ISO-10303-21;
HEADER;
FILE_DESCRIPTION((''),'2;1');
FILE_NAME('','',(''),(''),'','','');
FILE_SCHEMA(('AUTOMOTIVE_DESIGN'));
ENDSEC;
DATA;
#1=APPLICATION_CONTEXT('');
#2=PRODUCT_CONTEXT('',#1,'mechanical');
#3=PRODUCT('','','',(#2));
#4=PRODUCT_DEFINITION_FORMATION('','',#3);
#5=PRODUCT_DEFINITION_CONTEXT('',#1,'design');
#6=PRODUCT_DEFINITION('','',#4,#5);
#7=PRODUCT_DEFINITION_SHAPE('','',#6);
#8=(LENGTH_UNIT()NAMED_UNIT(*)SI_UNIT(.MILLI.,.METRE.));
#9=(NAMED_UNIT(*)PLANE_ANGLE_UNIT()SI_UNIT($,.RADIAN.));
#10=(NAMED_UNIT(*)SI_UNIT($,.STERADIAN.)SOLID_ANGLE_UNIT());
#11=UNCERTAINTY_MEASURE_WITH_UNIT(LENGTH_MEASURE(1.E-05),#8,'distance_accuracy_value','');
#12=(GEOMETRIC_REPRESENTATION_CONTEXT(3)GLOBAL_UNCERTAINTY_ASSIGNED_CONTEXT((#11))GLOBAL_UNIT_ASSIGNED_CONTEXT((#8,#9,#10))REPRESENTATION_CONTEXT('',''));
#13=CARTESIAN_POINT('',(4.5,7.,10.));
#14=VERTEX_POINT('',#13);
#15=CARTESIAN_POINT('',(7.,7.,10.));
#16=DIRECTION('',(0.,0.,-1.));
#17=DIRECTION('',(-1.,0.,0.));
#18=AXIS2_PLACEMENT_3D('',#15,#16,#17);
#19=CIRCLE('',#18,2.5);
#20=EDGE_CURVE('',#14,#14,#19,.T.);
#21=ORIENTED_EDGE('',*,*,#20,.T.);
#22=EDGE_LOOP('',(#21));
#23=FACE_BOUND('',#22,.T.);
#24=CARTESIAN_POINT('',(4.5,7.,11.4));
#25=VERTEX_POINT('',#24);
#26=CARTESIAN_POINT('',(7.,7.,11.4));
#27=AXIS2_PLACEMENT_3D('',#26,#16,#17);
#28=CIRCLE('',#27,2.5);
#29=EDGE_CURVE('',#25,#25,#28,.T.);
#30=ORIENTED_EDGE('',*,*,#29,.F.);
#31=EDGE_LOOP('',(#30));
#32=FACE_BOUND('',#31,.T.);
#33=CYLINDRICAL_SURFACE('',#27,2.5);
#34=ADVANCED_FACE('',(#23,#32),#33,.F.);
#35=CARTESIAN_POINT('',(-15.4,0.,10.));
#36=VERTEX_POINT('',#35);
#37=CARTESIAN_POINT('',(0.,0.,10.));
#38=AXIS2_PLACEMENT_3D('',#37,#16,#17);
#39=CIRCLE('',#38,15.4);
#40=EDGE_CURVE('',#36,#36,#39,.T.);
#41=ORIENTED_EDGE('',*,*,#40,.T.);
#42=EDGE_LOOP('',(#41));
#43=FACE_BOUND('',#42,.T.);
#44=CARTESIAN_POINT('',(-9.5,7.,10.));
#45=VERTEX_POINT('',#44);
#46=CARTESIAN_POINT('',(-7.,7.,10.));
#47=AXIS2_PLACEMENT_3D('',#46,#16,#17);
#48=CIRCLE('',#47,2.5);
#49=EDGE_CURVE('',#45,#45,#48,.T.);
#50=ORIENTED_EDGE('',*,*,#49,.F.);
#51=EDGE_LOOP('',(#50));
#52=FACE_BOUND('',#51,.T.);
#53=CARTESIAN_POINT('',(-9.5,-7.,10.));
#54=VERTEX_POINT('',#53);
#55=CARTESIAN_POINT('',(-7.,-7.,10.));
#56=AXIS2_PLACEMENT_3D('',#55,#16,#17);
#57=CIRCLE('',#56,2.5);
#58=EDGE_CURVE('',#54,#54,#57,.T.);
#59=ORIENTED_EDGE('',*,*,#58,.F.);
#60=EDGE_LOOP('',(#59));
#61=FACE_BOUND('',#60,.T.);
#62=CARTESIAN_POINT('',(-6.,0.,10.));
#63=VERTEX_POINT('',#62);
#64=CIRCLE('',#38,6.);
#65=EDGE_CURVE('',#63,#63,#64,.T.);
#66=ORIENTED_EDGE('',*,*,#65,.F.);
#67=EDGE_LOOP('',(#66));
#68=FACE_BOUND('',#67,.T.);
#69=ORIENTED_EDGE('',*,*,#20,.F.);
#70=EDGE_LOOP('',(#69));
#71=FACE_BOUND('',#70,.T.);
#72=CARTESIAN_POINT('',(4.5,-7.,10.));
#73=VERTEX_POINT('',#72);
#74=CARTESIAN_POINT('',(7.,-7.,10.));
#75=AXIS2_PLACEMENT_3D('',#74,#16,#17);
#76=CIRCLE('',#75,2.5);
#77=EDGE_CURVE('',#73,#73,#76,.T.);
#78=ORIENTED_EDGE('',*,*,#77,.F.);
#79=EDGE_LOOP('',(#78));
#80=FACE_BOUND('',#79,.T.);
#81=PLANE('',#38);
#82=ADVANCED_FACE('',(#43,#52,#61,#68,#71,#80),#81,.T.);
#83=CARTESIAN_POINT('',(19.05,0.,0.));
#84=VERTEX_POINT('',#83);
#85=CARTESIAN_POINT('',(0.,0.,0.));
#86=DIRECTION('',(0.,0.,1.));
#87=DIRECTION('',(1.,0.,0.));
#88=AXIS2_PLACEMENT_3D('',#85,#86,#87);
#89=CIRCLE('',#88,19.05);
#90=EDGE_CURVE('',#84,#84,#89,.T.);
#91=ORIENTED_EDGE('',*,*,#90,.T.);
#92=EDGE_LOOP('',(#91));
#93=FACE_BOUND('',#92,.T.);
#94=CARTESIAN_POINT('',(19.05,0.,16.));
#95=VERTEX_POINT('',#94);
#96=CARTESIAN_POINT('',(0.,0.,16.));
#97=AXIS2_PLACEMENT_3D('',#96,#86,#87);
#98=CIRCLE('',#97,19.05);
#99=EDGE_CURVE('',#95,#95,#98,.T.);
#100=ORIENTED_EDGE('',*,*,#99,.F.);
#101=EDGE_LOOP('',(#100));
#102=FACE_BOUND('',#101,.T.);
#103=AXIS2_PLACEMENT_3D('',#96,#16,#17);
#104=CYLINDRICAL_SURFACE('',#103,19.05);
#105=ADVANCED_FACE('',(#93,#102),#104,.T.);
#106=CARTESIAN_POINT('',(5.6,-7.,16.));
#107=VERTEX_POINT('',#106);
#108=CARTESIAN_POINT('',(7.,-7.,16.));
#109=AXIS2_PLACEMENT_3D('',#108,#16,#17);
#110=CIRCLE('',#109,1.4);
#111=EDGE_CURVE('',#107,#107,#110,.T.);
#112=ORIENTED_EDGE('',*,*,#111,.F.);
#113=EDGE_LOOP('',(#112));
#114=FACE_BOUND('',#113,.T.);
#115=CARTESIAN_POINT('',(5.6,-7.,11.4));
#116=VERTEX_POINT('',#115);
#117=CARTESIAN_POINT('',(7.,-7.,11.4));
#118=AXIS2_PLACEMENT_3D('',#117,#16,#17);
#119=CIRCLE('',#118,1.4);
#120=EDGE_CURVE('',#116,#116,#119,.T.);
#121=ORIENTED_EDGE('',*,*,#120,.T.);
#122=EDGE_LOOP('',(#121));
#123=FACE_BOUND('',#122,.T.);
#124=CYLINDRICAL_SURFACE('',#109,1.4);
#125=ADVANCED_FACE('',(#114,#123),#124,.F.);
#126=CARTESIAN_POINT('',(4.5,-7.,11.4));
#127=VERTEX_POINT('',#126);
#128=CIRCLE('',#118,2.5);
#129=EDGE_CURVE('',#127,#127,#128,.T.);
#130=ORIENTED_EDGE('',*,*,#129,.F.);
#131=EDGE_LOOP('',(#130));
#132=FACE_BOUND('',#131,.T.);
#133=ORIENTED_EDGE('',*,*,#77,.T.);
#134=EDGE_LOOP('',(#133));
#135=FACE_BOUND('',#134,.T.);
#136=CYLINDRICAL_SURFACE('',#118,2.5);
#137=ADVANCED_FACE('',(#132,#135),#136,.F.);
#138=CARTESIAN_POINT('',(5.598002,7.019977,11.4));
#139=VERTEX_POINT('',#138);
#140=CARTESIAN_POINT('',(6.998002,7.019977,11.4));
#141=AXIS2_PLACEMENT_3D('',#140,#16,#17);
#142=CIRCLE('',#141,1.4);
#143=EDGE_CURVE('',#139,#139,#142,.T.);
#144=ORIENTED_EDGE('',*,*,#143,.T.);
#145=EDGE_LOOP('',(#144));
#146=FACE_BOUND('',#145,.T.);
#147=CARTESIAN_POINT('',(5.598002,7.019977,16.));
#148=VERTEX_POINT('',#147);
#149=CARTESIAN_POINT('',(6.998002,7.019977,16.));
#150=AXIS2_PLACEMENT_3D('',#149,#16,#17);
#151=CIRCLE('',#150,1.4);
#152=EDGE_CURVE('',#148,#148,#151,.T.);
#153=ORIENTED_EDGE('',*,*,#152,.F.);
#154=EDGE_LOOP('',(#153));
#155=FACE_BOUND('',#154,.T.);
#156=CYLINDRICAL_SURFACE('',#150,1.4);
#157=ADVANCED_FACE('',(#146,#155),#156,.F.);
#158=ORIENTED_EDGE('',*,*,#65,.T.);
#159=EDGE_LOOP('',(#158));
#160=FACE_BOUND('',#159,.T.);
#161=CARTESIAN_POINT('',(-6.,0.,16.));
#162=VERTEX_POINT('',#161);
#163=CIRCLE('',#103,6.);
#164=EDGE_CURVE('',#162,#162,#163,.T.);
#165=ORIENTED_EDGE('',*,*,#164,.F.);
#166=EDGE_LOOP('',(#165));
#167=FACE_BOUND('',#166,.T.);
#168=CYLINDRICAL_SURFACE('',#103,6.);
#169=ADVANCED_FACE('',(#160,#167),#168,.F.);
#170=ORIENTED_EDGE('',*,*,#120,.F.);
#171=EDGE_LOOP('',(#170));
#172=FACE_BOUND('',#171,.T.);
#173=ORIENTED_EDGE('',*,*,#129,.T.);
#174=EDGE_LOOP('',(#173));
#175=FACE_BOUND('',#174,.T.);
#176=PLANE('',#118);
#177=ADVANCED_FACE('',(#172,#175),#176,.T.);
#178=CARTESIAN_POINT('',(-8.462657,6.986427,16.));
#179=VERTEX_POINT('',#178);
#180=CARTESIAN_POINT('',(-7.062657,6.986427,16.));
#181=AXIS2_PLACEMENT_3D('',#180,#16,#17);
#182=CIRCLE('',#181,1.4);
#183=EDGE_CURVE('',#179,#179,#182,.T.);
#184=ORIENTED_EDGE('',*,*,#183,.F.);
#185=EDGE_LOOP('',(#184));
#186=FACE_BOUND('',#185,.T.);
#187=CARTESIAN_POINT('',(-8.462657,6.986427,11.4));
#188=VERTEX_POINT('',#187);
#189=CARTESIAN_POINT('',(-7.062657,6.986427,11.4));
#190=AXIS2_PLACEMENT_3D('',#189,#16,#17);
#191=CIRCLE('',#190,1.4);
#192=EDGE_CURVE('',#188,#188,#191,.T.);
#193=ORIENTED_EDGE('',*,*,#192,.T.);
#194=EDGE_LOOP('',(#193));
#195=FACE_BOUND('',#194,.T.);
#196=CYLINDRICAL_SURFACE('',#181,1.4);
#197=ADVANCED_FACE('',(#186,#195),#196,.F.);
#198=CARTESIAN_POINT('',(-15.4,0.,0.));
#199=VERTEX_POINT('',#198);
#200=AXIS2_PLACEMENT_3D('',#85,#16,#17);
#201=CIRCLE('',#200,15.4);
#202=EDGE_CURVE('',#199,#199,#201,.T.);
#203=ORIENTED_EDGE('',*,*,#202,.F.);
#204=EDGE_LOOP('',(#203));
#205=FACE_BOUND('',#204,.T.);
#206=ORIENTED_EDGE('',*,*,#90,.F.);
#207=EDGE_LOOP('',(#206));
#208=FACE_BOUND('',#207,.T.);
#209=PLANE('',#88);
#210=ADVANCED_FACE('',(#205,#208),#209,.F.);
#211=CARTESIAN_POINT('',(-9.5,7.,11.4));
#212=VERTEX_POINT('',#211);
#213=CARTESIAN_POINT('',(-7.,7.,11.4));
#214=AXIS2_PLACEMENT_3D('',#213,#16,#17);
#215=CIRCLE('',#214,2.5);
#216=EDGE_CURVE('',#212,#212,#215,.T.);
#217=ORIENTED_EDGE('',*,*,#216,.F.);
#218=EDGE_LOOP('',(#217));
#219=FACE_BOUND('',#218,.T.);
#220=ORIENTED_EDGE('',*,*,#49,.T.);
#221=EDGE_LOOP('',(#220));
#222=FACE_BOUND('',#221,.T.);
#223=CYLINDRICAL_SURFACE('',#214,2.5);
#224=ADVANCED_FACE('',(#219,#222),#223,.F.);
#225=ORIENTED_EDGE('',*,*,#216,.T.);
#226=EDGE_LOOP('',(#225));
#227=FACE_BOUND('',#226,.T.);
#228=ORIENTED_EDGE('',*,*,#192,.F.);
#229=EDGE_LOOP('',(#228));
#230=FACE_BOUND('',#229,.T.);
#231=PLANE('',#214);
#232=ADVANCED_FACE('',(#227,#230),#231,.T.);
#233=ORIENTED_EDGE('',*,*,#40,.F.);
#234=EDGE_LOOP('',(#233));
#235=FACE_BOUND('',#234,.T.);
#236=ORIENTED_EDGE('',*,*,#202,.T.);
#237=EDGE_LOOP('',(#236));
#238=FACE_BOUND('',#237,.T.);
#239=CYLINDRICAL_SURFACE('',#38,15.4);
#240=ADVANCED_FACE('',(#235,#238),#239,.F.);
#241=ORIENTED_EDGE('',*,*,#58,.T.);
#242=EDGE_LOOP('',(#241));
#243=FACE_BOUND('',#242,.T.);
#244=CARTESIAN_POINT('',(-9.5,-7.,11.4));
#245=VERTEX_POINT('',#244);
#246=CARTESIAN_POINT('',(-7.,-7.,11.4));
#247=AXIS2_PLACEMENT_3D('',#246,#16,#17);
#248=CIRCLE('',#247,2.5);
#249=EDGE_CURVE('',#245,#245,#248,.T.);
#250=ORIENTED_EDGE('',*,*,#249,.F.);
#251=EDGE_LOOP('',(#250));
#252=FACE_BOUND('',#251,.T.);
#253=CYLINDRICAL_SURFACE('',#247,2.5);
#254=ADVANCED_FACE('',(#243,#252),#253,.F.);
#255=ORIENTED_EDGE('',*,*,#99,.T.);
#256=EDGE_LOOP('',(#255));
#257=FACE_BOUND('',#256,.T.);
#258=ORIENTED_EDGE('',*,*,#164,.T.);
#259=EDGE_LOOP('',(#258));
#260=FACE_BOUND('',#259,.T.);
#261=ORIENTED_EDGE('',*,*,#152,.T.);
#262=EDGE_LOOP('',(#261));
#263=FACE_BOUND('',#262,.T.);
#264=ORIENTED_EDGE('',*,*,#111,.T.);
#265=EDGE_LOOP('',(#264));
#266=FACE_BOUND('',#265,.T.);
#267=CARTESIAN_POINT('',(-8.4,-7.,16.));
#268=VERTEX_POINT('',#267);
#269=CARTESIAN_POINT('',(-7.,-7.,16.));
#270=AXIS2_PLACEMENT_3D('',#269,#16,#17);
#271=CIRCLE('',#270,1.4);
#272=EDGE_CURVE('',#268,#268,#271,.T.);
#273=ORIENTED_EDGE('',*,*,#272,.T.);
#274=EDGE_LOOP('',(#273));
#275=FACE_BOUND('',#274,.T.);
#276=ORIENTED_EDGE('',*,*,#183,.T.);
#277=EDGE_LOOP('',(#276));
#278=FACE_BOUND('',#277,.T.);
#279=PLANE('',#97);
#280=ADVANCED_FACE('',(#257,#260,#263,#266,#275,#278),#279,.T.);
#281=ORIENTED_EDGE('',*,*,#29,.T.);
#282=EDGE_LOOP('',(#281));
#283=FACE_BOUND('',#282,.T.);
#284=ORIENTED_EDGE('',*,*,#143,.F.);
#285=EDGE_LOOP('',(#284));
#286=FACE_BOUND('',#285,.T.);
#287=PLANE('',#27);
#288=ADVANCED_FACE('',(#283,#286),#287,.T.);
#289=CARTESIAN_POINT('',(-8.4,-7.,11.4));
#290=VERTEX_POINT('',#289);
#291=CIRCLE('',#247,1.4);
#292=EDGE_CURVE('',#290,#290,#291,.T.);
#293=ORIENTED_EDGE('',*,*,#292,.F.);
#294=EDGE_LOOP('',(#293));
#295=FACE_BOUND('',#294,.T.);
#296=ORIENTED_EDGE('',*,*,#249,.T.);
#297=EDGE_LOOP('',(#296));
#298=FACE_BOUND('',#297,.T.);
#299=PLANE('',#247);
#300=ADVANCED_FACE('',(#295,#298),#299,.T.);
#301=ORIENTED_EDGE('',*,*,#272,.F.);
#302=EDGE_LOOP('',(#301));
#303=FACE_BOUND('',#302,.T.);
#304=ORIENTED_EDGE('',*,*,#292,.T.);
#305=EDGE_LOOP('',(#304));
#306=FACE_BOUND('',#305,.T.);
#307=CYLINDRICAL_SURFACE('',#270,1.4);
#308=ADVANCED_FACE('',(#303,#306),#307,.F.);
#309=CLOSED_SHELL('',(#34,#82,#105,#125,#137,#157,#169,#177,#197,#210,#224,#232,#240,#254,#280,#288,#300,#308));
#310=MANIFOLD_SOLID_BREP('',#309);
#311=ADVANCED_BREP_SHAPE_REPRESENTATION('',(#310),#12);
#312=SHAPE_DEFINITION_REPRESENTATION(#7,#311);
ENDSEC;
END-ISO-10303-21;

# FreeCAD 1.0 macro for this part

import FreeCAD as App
import Part
import Sketcher
from FreeCAD import Vector

doc = App.newDocument("Part")
body = doc.addObject("PartDesign::Body", "Body")

sketch1 = doc.addObject("Sketcher::SketchObject", "Sketch")
body.addObject(sketch1)
sketch1.AttachmentSupport = (doc.XY_Plane, [""])
sketch1.MapMode = "FlatFace"
sketch1.addGeometry(Part.Circle(Vector(0, 0, 0), Vector(0, 0, 1), 19), False)
sketch1.addConstraint([
    Sketcher.Constraint("Coincident", 0, 3, -1, 1),
    Sketcher.Constraint("Diameter", 0, 38.1),
])
pad1 = doc.addObject("PartDesign::Pad", "Pad")
body.addObject(pad1)
pad1.Profile = sketch1
pad1.Length = 16

sketch2 = doc.addObject("Sketcher::SketchObject", "Sketch001")
body.addObject(sketch2)
sketch2.AttachmentSupport = (doc.XY_Plane, [""])
sketch2.MapMode = "FlatFace"
sketch2.addGeometry(Part.Circle(Vector(0, 0, 0), Vector(0, 0, 1), 15), False)
sketch2.addConstraint([
    Sketcher.Constraint("Coincident", 0, 3, -1, 1),
    Sketcher.Constraint("Diameter", 0, 30.8),
])
pocket1 = doc.addObject("PartDesign::Pocket", "Pocket")
body.addObject(pocket1)
pocket1.Profile = sketch2
pocket1.Length = 10
pocket1.Reversed = True

sketch3 = doc.addObject("Sketcher::SketchObject", "Sketch002")
body.addObject(sketch3)
sketch3.AttachmentSupport = (doc.XY_Plane, [""])
sketch3.MapMode = "FlatFace"
sketch3.AttachmentOffset = App.Placement(Vector(0, 0, 10), App.Rotation())
sketch3.addGeometry([
    Part.Circle(Vector(7, 7, 0), Vector(0, 0, 1), 2.5),
    Part.Circle(Vector(-7, 7, 0), Vector(0, 0, 1), 2.5),
    Part.Circle(Vector(-7, -7, 0), Vector(0, 0, 1), 2.5),
    Part.Circle(Vector(7, -7, 0), Vector(0, 0, 1), 2.5),
], False)
sketch3.addConstraint([
    Sketcher.Constraint("Equal", 0, 1),
    Sketcher.Constraint("Equal", 1, 2),
    Sketcher.Constraint("Equal", 2, 3),
    Sketcher.Constraint("Symmetric", 0, 3, 2, 3, -1, 1),
    Sketcher.Constraint("Symmetric", 1, 3, 3, 3, -1, 1),
    Sketcher.Constraint("Symmetric", 0, 3, 1, 3, -2),
    Sketcher.Constraint("Diameter", 0, 5.0),
    Sketcher.Constraint("DistanceX", -1, 1, 0, 3, 7.0),
    Sketcher.Constraint("DistanceY", -1, 1, 0, 3, 7.0),
])
pocket2 = doc.addObject("PartDesign::Pocket", "Pocket001")
body.addObject(pocket2)
pocket2.Profile = sketch3
pocket2.Length = 1.4
pocket2.Reversed = True

sketch4 = doc.addObject("Sketcher::SketchObject", "Sketch003")
body.addObject(sketch4)
sketch4.AttachmentSupport = (doc.XY_Plane, [""])
sketch4.MapMode = "FlatFace"
sketch4.AttachmentOffset = App.Placement(Vector(0, 0, 11.4), App.Rotation())
sketch4.addGeometry(Part.Circle(Vector(7, 7, 0), Vector(0, 0, 1), 1.4), False)
sketch4.addConstraint([
    Sketcher.Constraint("Diameter", 0, 2.8),
    Sketcher.Constraint("DistanceX", -1, 1, 0, 3, 6.998002),
    Sketcher.Constraint("DistanceY", -1, 1, 0, 3, 7.019977),
])
pocket3 = doc.addObject("PartDesign::Pocket", "Pocket002")
body.addObject(pocket3)
pocket3.Profile = sketch4
pocket3.Type = "ThroughAll"
pocket3.Reversed = True

sketch5 = doc.addObject("Sketcher::SketchObject", "Sketch004")
body.addObject(sketch5)
sketch5.AttachmentSupport = (doc.XY_Plane, [""])
sketch5.MapMode = "FlatFace"
sketch5.AttachmentOffset = App.Placement(Vector(0, 0, 11.4), App.Rotation())
sketch5.addGeometry(Part.Circle(Vector(-7.1, 7, 0), Vector(0, 0, 1), 1.4), False)
sketch5.addConstraint([
    Sketcher.Constraint("Diameter", 0, 2.8),
    Sketcher.Constraint("DistanceX", 0, 3, -1, 1, 7.062657),
    Sketcher.Constraint("DistanceY", -1, 1, 0, 3, 6.986427),
])
pocket4 = doc.addObject("PartDesign::Pocket", "Pocket003")
body.addObject(pocket4)
pocket4.Profile = sketch5
pocket4.Type = "ThroughAll"
pocket4.Reversed = True

sketch6 = doc.addObject("Sketcher::SketchObject", "Sketch005")
body.addObject(sketch6)
sketch6.AttachmentSupport = (doc.XY_Plane, [""])
sketch6.MapMode = "FlatFace"
sketch6.AttachmentOffset = App.Placement(Vector(0, 0, 11.4), App.Rotation())
sketch6.addGeometry(Part.Circle(Vector(7, -7, 0), Vector(0, 0, 1), 1.4), False)
sketch6.addConstraint([
    Sketcher.Constraint("Diameter", 0, 2.8),
    Sketcher.Constraint("DistanceX", -1, 1, 0, 3, 7.0),
    Sketcher.Constraint("DistanceY", 0, 3, -1, 1, 7.0),
])
pocket5 = doc.addObject("PartDesign::Pocket", "Pocket004")
body.addObject(pocket5)
pocket5.Profile = sketch6
pocket5.Type = "ThroughAll"
pocket5.Reversed = True

sketch7 = doc.addObject("Sketcher::SketchObject", "Sketch006")
body.addObject(sketch7)
sketch7.AttachmentSupport = (doc.XY_Plane, [""])
sketch7.MapMode = "FlatFace"
sketch7.AttachmentOffset = App.Placement(Vector(0, 0, 11.4), App.Rotation())
sketch7.addGeometry(Part.Circle(Vector(-7, -7, 0), Vector(0, 0, 1), 1.4), False)
sketch7.addConstraint([
    Sketcher.Constraint("Diameter", 0, 2.8),
    Sketcher.Constraint("DistanceX", 0, 3, -1, 1, 7.0),
    Sketcher.Constraint("DistanceY", 0, 3, -1, 1, 7.0),
])
pocket6 = doc.addObject("PartDesign::Pocket", "Pocket005")
body.addObject(pocket6)
pocket6.Profile = sketch7
pocket6.Type = "ThroughAll"
pocket6.Reversed = True

sketch8 = doc.addObject("Sketcher::SketchObject", "Sketch007")
body.addObject(sketch8)
sketch8.AttachmentSupport = (doc.XY_Plane, [""])
sketch8.MapMode = "FlatFace"
sketch8.AttachmentOffset = App.Placement(Vector(0, 0, 10), App.Rotation())
sketch8.addGeometry(Part.Circle(Vector(0, 0, 0), Vector(0, 0, 1), 6), False)
sketch8.addConstraint([
    Sketcher.Constraint("Coincident", 0, 3, -1, 1),
    Sketcher.Constraint("Diameter", 0, 12.0),
])
pocket7 = doc.addObject("PartDesign::Pocket", "Pocket006")
body.addObject(pocket7)
pocket7.Profile = sketch8
pocket7.Type = "ThroughAll"
pocket7.Reversed = True

doc.recompute()
